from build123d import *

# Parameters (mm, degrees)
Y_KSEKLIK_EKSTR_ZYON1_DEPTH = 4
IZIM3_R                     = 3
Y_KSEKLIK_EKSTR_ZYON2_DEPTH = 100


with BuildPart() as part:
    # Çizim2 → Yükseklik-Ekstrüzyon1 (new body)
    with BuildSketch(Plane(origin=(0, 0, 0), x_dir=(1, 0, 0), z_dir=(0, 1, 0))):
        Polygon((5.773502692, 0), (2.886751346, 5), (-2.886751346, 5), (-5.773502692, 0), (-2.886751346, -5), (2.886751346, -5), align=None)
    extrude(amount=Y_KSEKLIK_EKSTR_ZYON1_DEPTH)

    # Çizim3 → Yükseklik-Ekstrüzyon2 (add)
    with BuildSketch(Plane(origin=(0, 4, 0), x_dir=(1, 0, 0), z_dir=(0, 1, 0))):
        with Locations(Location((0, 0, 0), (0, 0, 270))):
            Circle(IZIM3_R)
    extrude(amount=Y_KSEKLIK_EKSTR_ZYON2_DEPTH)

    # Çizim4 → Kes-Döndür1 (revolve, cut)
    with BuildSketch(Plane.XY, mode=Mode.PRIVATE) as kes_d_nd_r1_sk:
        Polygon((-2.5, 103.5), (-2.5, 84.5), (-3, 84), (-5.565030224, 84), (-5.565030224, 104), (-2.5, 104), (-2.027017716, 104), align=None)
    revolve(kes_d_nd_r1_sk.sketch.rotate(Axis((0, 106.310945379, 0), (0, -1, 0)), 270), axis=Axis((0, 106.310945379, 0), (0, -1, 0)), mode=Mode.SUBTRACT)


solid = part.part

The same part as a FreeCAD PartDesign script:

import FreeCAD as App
import Part
import Sketcher
Q = App.Units.Quantity

doc = App.newDocument("Part")
body = doc.addObject("PartDesign::Body", "Body")

# Sketch on XZ plane
sketch1 = doc.addObject("Sketcher::SketchObject", "Sketch")
body.addObject(sketch1)
sketch1.AttachmentSupport = (doc.XZ_Plane, [""])
sketch1.MapMode = "FlatFace"
sketch1.addGeometry(Part.LineSegment(App.Vector(6, 0, 0), App.Vector(3, -5, 0)), False)
sketch1.addGeometry(Part.LineSegment(App.Vector(3, -5, 0), App.Vector(-3, -5, 0)), False)
sketch1.addGeometry(Part.LineSegment(App.Vector(-3, -5, 0), App.Vector(-6, 0, 0)), False)
sketch1.addGeometry(Part.LineSegment(App.Vector(-6, 0, 0), App.Vector(-3, 5, 0)), False)
sketch1.addGeometry(Part.LineSegment(App.Vector(-3, 5, 0), App.Vector(3, 5, 0)), False)
sketch1.addGeometry(Part.LineSegment(App.Vector(3, 5, 0), App.Vector(6, 0, 0)), False)
sketch1.addConstraint(Sketcher.Constraint("Coincident", 0, 2, 1, 1))
sketch1.addConstraint(Sketcher.Constraint("Coincident", 1, 2, 2, 1))
sketch1.addConstraint(Sketcher.Constraint("Coincident", 2, 2, 3, 1))
sketch1.addConstraint(Sketcher.Constraint("Coincident", 3, 2, 4, 1))
sketch1.addConstraint(Sketcher.Constraint("Coincident", 4, 2, 5, 1))
sketch1.addConstraint(Sketcher.Constraint("Coincident", 5, 2, 0, 1))
sketch1.addConstraint(Sketcher.Constraint("Horizontal", 1))
sketch1.addConstraint(Sketcher.Constraint("Horizontal", 4))
sketch1.addConstraint(Sketcher.Constraint("Symmetric", 0, 2, 3, 2, -1, 1))
sketch1.addConstraint(Sketcher.Constraint("Symmetric", 2, 2, 5, 2, -1, 1))
sketch1.addConstraint(Sketcher.Constraint("PointOnObject", 2, 2, -1))
sketch1.addConstraint(Sketcher.Constraint("Parallel", 2, 5))
sketch1.addConstraint(Sketcher.Constraint("Vertical", 1, 2, 3, 2))
sketch1.addConstraint(Sketcher.Constraint("Angle", 0, Q("-120 deg")))
sketch1.addConstraint(Sketcher.Constraint("DistanceY", 0, 2, -1, 1, 5.0))
sketch1.addConstraint(Sketcher.Constraint("DistanceX", 1, 2, 1, 1, 5.773503))
pad1 = doc.addObject("PartDesign::Pad", "Pad")
body.addObject(pad1)
pad1.Profile = sketch1
pad1.Length = 4
pad1.Reversed = True

# Sketch on XZ plane
sketch2 = doc.addObject("Sketcher::SketchObject", "Sketch001")
body.addObject(sketch2)
sketch2.AttachmentSupport = (doc.XZ_Plane, [""])
sketch2.MapMode = "FlatFace"
sketch2.AttachmentOffset = App.Placement(App.Vector(0, 0, -4), App.Rotation())
sketch2.addGeometry(Part.Circle(App.Vector(0, 0, 0), App.Vector(0, 0, 1), 3), False)
sketch2.addConstraint(Sketcher.Constraint("Coincident", 0, 3, -1, 1))
sketch2.addConstraint(Sketcher.Constraint("Diameter", 0, 6.0))
pad2 = doc.addObject("PartDesign::Pad", "Pad001")
body.addObject(pad2)
pad2.Profile = sketch2
pad2.Length = 100
pad2.Reversed = True

# Sketch on XY plane
sketch3 = doc.addObject("Sketcher::SketchObject", "Sketch002")
body.addObject(sketch3)
sketch3.AttachmentSupport = (doc.XY_Plane, [""])
sketch3.MapMode = "FlatFace"
sketch3.addGeometry(Part.LineSegment(App.Vector(-2.5, 84.5, 0), App.Vector(-2.5, 103.5, 0)), False)
sketch3.addGeometry(Part.LineSegment(App.Vector(-2.5, 103.5, 0), App.Vector(-2, 104, 0)), False)
sketch3.addGeometry(Part.LineSegment(App.Vector(-2, 104, 0), App.Vector(-5.6, 104, 0)), False)
sketch3.addGeometry(Part.LineSegment(App.Vector(-5.6, 104, 0), App.Vector(-5.6, 84, 0)), False)
sketch3.addGeometry(Part.LineSegment(App.Vector(-5.6, 84, 0), App.Vector(-3, 84, 0)), False)
sketch3.addGeometry(Part.LineSegment(App.Vector(-3, 84, 0), App.Vector(-2.5, 84.5, 0)), False)
sketch3.addConstraint(Sketcher.Constraint("Coincident", 0, 2, 1, 1))
sketch3.addConstraint(Sketcher.Constraint("Coincident", 1, 2, 2, 1))
sketch3.addConstraint(Sketcher.Constraint("Coincident", 2, 2, 3, 1))
sketch3.addConstraint(Sketcher.Constraint("Coincident", 3, 2, 4, 1))
sketch3.addConstraint(Sketcher.Constraint("Coincident", 4, 2, 5, 1))
sketch3.addConstraint(Sketcher.Constraint("Coincident", 5, 2, 0, 1))
sketch3.addConstraint(Sketcher.Constraint("Vertical", 0))
sketch3.addConstraint(Sketcher.Constraint("Horizontal", 2))
sketch3.addConstraint(Sketcher.Constraint("Vertical", 3))
sketch3.addConstraint(Sketcher.Constraint("Horizontal", 4))
sketch3.addConstraint(Sketcher.Constraint("DistanceY", 0, 1, 0, 2, 19.0))
sketch3.addConstraint(Sketcher.Constraint("DistanceY", 3, 2, 3, 1, 20.0))
sketch3.addConstraint(Sketcher.Constraint("Angle", 5, Q("45 deg")))
sketch3.addConstraint(Sketcher.Constraint("DistanceY", -1, 1, 1, 2, 104.0))
sketch3.addConstraint(Sketcher.Constraint("DistanceX", 4, 2, -1, 1, 3.0))
sketch3.addConstraint(Sketcher.Constraint("DistanceX", 0, 2, -1, 1, 2.5))
sketch3.addConstraint(Sketcher.Constraint("DistanceX", 4, 1, 4, 2, 2.56503))
sketch3.addConstraint(Sketcher.Constraint("DistanceX", 2, 2, 2, 1, 3.538013))
groove = doc.addObject("PartDesign::Groove", "Groove")
body.addObject(groove)
groove.Profile = sketch3
groove.ReferenceAxis = (sketch3, ["V_Axis"])
groove.Angle = 360

doc.recompute()
